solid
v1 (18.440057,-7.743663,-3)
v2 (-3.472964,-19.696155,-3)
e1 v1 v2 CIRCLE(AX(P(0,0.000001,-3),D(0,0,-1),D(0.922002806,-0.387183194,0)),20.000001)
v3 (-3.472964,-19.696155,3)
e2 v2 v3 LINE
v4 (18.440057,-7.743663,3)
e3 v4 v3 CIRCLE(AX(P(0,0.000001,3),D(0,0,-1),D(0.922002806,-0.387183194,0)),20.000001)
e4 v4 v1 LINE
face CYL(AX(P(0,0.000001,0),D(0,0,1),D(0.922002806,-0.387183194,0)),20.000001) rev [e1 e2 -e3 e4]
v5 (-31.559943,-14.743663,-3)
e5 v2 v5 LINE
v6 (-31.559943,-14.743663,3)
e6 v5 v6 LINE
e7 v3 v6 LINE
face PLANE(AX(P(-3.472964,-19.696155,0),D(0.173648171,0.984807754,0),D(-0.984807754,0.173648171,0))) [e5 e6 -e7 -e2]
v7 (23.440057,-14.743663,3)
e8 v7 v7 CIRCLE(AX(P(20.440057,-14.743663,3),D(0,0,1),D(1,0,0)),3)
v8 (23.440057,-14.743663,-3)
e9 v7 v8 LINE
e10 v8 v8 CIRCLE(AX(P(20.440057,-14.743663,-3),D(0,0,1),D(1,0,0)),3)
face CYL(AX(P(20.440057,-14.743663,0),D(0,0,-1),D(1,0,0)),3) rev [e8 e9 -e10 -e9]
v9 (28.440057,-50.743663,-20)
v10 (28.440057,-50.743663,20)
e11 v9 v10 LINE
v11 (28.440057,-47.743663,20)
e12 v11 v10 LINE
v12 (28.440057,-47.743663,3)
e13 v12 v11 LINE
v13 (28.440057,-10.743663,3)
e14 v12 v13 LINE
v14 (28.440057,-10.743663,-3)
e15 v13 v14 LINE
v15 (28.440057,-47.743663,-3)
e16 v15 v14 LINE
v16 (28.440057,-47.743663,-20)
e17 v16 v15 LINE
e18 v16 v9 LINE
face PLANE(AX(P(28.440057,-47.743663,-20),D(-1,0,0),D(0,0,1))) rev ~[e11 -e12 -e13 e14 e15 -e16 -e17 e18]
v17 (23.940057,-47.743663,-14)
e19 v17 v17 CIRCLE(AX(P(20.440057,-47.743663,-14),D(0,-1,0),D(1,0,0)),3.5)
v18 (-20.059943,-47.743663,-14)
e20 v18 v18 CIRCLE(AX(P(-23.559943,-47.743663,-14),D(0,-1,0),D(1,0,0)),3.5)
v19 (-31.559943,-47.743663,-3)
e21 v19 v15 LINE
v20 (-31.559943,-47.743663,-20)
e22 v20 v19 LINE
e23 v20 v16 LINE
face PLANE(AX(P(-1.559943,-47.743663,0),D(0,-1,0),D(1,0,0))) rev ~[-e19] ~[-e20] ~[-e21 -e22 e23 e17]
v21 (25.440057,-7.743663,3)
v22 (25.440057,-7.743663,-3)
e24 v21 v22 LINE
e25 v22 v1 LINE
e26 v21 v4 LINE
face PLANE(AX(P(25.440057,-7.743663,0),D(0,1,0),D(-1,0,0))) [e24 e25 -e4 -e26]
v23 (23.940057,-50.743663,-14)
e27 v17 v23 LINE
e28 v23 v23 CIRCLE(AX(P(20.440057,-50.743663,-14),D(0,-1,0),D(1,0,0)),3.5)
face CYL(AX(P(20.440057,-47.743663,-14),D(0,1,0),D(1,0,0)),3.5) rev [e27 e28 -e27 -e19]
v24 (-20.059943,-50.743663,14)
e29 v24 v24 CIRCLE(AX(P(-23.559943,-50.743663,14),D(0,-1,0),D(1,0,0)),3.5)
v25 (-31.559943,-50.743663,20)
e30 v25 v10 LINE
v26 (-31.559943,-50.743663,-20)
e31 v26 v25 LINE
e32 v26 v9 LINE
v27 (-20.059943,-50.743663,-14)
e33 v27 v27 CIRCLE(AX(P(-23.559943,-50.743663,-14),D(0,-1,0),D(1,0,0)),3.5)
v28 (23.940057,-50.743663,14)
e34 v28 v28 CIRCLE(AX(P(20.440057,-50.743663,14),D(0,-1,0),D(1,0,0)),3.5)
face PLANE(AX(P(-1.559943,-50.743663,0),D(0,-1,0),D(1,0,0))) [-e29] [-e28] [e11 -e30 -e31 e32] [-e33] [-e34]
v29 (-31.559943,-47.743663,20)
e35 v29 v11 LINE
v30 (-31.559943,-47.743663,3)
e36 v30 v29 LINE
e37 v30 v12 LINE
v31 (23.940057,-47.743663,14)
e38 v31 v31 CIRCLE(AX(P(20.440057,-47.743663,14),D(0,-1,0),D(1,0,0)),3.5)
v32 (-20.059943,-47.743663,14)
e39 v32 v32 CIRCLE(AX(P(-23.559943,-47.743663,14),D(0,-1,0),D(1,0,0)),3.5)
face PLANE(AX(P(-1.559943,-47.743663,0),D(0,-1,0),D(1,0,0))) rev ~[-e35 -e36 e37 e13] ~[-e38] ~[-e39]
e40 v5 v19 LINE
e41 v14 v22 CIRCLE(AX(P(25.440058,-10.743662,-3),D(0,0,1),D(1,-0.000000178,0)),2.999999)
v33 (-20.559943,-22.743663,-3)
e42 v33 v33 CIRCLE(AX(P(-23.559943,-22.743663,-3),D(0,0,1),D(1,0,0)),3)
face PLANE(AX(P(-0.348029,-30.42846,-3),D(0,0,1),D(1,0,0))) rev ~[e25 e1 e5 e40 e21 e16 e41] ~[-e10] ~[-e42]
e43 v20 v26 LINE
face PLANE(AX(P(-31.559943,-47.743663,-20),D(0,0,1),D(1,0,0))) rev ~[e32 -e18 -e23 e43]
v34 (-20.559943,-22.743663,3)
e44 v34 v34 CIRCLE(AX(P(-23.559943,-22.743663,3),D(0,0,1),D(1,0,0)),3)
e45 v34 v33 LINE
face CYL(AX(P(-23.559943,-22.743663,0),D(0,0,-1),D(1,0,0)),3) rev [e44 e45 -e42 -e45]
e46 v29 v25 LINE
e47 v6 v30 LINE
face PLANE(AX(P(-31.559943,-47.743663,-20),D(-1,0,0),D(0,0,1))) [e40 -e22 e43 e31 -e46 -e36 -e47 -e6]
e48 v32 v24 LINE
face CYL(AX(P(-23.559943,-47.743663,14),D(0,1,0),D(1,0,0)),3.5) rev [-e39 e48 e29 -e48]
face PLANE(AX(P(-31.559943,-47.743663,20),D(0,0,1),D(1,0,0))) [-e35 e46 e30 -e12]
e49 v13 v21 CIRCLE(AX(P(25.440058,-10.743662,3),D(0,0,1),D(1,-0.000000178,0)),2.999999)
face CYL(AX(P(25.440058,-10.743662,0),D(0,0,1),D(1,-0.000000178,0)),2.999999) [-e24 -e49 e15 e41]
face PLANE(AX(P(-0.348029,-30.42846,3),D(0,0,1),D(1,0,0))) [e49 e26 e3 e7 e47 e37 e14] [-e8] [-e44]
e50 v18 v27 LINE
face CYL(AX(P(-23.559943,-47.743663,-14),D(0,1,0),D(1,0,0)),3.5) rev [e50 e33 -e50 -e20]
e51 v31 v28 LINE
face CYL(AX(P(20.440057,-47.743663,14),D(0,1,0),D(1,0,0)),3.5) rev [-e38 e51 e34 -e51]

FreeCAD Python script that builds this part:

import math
import FreeCAD as App
import Part
import Sketcher
from FreeCAD import Vector
Q = App.Units.Quantity

doc = App.newDocument("Part")
params = doc.addObject("Spreadsheet::Sheet", "Params")
for row, (alias, value) in enumerate([
    ("sketch1_diameter", "6 mm"),
    ("sketch1_radius", "20.000001 mm"),
    ("sketch1_width", "60 mm"),
    ("sketch1_width2", "7 mm"),
    ("sketch1_height", "33 mm"),
    ("pad1_length", "6 mm"),
    ("sketch2_diameter", "7 mm"),
    ("sketch2_width", "60 mm"),
    ("sketch2_height", "40 mm"),
    ("pad2_length", "3 mm"),
], start=1):
    params.set(f"A{row}", alias)
    params.set(f"B{row}", "=" + value)
    params.setAlias(f"B{row}", alias)

body = doc.addObject("PartDesign::Body", "Body")

# Sketch on XY plane
sketch1 = doc.addObject("Sketcher::SketchObject", "Sketch")
body.addObject(sketch1)
sketch1.AttachmentSupport = (doc.XY_Plane, [""])
sketch1.MapMode = "FlatFace"
sketch1.addGeometry([
    Part.ArcOfCircle(Part.Circle(Vector(0, 0, 0), Vector(0, 0, 1), 20), math.radians(-100), math.radians(-23)),  # 0
    Part.LineSegment(Vector(-3.5, -19.7, 0), Vector(-31.6, -14.7, 0)),  # 1
    Part.LineSegment(Vector(-31.6, -14.7, 0), Vector(-31.6, -47.7, 0)),  # 2
    Part.LineSegment(Vector(-31.6, -47.7, 0), Vector(28.4, -47.7, 0)),  # 3
    Part.LineSegment(Vector(28.4, -47.7, 0), Vector(28.4, -10.7, 0)),  # 4
    Part.ArcOfCircle(Part.Circle(Vector(25.4, -10.7, 0), Vector(0, 0, 1), 3), math.radians(0), math.radians(90)),  # 5
    Part.LineSegment(Vector(25.4, -7.7, 0), Vector(18.4, -7.7, 0)),  # 6
    Part.Circle(Vector(-23.6, -22.7, 0), Vector(0, 0, 1), 3),  # 7
    Part.Circle(Vector(20.4, -14.7, 0), Vector(0, 0, 1), 3),  # 8
], False)
sketch1.addConstraint([
    Sketcher.Constraint("Tangent", 0, 1, 1, 1),
    Sketcher.Constraint("Coincident", 1, 2, 2, 1),
    Sketcher.Constraint("Coincident", 2, 2, 3, 1),
    Sketcher.Constraint("Coincident", 3, 2, 4, 1),
    Sketcher.Constraint("Tangent", 4, 2, 5, 1),
    Sketcher.Constraint("Tangent", 5, 2, 6, 1),
    Sketcher.Constraint("Coincident", 6, 2, 0, 2),
    Sketcher.Constraint("Vertical", 2),
    Sketcher.Constraint("Horizontal", 3),
    Sketcher.Constraint("Vertical", 4),
    Sketcher.Constraint("Horizontal", 6),
    Sketcher.Constraint("Coincident", 0, 3, -1, 1),
    Sketcher.Constraint("Equal", 5, 7),
    Sketcher.Constraint("Equal", 7, 8),
    Sketcher.Constraint("Horizontal", 8, 3, 1, 2),
    Sketcher.Constraint("Diameter", 7, Q("6 mm")),
    Sketcher.Constraint("Radius", 0, Q("20.000001 mm")),
    Sketcher.Constraint("DistanceX", 3, 1, 3, 2, Q("60 mm")),
    Sketcher.Constraint("DistanceX", 6, 2, 6, 1, Q("7 mm")),
    Sketcher.Constraint("DistanceY", 2, 2, 2, 1, Q("33 mm")),
    Sketcher.Constraint("DistanceY", 4, 1, 4, 2, Q("37 mm")),
    Sketcher.Constraint("Angle", 1, Q("170 deg")),
    Sketcher.Constraint("DistanceX", 7, 3, 5, 3, Q("49.000001 mm")),
    Sketcher.Constraint("DistanceY", 7, 3, 5, 3, Q("12.000001 mm")),
    Sketcher.Constraint("DistanceX", 8, 3, 5, 3, Q("5.000001 mm")),
])
sketch1.setExpression("Constraints[15]", "Params.sketch1_diameter")
sketch1.setExpression("Constraints[16]", "Params.sketch1_radius")
sketch1.setExpression("Constraints[17]", "Params.sketch1_width")
sketch1.setExpression("Constraints[18]", "Params.sketch1_width2")
sketch1.setExpression("Constraints[19]", "Params.sketch1_height")
pad1 = doc.addObject("PartDesign::Pad", "Pad")
body.addObject(pad1)
pad1.Profile = sketch1
pad1.setExpression("Length", "Params.pad1_length")
pad1.Midplane = True

# Sketch on XZ plane
sketch2 = doc.addObject("Sketcher::SketchObject", "Sketch001")
body.addObject(sketch2)
sketch2.AttachmentSupport = (doc.XZ_Plane, [""])
sketch2.MapMode = "FlatFace"
sketch2.AttachmentOffset = App.Placement(Vector(0, 0, 47.743663), App.Rotation())
sketch2.addGeometry([
    Part.LineSegment(Vector(-31.6, 20, 0), Vector(-31.6, -20, 0)),  # 0
    Part.LineSegment(Vector(-31.6, -20, 0), Vector(28.4, -20, 0)),  # 1
    Part.LineSegment(Vector(28.4, -20, 0), Vector(28.4, 20, 0)),  # 2
    Part.LineSegment(Vector(28.4, 20, 0), Vector(-31.6, 20, 0)),  # 3
    Part.Circle(Vector(-23.6, -14, 0), Vector(0, 0, 1), 3.5),  # 4
    Part.Circle(Vector(20.4, -14, 0), Vector(0, 0, 1), 3.5),  # 5
    Part.Circle(Vector(-23.6, 14, 0), Vector(0, 0, 1), 3.5),  # 6
    Part.Circle(Vector(20.4, 14, 0), Vector(0, 0, 1), 3.5),  # 7
], False)
sketch2.addConstraint([
    Sketcher.Constraint("Coincident", 0, 2, 1, 1),
    Sketcher.Constraint("Coincident", 1, 2, 2, 1),
    Sketcher.Constraint("Coincident", 2, 2, 3, 1),
    Sketcher.Constraint("Coincident", 3, 2, 0, 1),
    Sketcher.Constraint("Vertical", 0),
    Sketcher.Constraint("Horizontal", 1),
    Sketcher.Constraint("Vertical", 2),
    Sketcher.Constraint("Horizontal", 3),
    Sketcher.Constraint("Equal", 4, 5),
    Sketcher.Constraint("Equal", 5, 6),
    Sketcher.Constraint("Equal", 6, 7),
    Sketcher.Constraint("Symmetric", 4, 3, 6, 3, -1),
    Sketcher.Constraint("Symmetric", 5, 3, 7, 3, -1),
    Sketcher.Constraint("Horizontal", 4, 3, 5, 3),
    Sketcher.Constraint("Diameter", 4, Q("7 mm")),
    Sketcher.Constraint("DistanceX", 1, 1, 1, 2, Q("60 mm")),
    Sketcher.Constraint("DistanceY", 0, 2, 0, 1, Q("40 mm")),
    Sketcher.Constraint("DistanceY", 4, 3, -1, 1, Q("14 mm")),
    Sketcher.Constraint("DistanceY", 0, 2, -1, 1, Q("20 mm")),
    Sketcher.Constraint("DistanceX", 4, 3, 5, 3, Q("44 mm")),
    Sketcher.Constraint("DistanceX", 0, 2, 4, 3, Q("8 mm")),
    Sketcher.Constraint("DistanceX", 4, 3, -1, 1, Q("23.559943 mm")),
])
sketch2.setExpression("Constraints[14]", "Params.sketch2_diameter")
sketch2.setExpression("Constraints[15]", "Params.sketch2_width")
sketch2.setExpression("Constraints[16]", "Params.sketch2_height")
pad2 = doc.addObject("PartDesign::Pad", "Pad001")
body.addObject(pad2)
pad2.Profile = sketch2
pad2.setExpression("Length", "Params.pad2_length")

doc.recompute()
